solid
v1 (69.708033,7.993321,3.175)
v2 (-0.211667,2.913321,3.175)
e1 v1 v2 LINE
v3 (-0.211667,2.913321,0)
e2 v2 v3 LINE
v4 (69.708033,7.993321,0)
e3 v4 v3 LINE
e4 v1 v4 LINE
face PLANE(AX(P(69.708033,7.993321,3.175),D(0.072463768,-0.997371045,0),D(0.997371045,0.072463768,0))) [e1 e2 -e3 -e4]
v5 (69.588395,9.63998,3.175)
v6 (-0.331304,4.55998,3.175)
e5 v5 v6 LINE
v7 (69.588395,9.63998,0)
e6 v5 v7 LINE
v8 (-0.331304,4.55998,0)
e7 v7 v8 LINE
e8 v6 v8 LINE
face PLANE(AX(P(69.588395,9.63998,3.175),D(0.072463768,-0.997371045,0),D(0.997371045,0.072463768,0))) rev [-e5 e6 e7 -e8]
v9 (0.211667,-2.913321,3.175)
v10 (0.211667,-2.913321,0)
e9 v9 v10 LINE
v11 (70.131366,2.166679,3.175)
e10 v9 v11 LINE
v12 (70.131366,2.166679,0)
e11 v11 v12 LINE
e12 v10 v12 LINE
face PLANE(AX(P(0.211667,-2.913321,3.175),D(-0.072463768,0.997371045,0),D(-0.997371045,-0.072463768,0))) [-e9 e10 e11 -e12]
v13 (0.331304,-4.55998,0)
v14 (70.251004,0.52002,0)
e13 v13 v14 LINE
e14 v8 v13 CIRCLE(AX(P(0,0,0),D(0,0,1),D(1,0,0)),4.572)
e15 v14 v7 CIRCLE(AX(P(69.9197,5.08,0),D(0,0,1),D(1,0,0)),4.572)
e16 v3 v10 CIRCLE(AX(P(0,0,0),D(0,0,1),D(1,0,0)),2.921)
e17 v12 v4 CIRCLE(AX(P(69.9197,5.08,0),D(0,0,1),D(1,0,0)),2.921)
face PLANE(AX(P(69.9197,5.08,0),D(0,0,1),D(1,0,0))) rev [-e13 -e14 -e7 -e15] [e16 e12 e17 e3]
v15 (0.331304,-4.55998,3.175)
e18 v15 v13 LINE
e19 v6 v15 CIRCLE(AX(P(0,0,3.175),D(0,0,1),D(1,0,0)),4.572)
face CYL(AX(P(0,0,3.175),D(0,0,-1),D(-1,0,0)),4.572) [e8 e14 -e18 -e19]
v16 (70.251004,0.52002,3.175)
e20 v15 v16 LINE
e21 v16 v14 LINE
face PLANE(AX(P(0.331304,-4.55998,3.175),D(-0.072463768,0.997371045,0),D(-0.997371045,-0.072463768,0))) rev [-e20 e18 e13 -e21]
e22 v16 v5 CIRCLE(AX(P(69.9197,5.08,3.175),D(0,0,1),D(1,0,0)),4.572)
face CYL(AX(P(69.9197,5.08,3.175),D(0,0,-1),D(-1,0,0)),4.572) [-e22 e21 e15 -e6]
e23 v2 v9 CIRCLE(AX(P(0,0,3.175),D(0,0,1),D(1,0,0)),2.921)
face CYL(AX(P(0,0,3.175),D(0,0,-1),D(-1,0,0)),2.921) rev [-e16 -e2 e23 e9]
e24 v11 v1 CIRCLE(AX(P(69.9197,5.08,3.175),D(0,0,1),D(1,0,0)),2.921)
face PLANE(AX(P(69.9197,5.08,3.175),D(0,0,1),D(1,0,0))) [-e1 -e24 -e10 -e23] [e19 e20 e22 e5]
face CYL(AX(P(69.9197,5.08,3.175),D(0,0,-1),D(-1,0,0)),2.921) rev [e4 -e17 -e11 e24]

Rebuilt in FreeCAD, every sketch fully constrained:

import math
import FreeCAD as App
import Part
import Sketcher
Q = App.Units.Quantity

doc = App.newDocument("Part")
body = doc.addObject("PartDesign::Body", "Body")

# Sketch on XY plane
sketch1 = body.newObject("Sketcher::SketchObject", "Sketch")
sketch1.AttachmentSupport = (doc.getObject("XY_Plane"), [""])
sketch1.MapMode = "FlatFace"
sketch1.addGeometry(Part.LineSegment(App.Vector(69.6, 9.6, 0), App.Vector(-0.3, 4.6, 0)), False)
sketch1.addGeometry(Part.ArcOfCircle(Part.Circle(App.Vector(0, 0, 0), App.Vector(0, 0, 1), 4.6), math.radians(94), math.radians(274)), False)
sketch1.addGeometry(Part.LineSegment(App.Vector(0.3, -4.6, 0), App.Vector(70.3, 0.5, 0)), False)
sketch1.addGeometry(Part.ArcOfCircle(Part.Circle(App.Vector(69.9, 5.1, 0), App.Vector(0, 0, 1), 4.6), math.radians(-86), math.radians(94)), False)
sketch1.addGeometry(Part.LineSegment(App.Vector(70.1, 2.2, 0), App.Vector(0.2, -2.9, 0)), False)
sketch1.addGeometry(Part.ArcOfCircle(Part.Circle(App.Vector(0, 0, 0), App.Vector(0, 0, 1), 2.9), math.radians(94), math.radians(274)), False)
sketch1.addGeometry(Part.LineSegment(App.Vector(-0.2, 2.9, 0), App.Vector(69.7, 8, 0)), False)
sketch1.addGeometry(Part.ArcOfCircle(Part.Circle(App.Vector(69.9, 5.1, 0), App.Vector(0, 0, 1), 2.9), math.radians(-86), math.radians(94)), False)
sketch1.addConstraint(Sketcher.Constraint("Tangent", 0, 2, 1, 1))
sketch1.addConstraint(Sketcher.Constraint("Tangent", 1, 2, 2, 1))
sketch1.addConstraint(Sketcher.Constraint("Tangent", 2, 2, 3, 1))
sketch1.addConstraint(Sketcher.Constraint("Tangent", 3, 2, 0, 1))
sketch1.addConstraint(Sketcher.Constraint("Tangent", 4, 2, 5, 2))
sketch1.addConstraint(Sketcher.Constraint("Tangent", 5, 1, 6, 1))
sketch1.addConstraint(Sketcher.Constraint("Tangent", 6, 2, 7, 2))
sketch1.addConstraint(Sketcher.Constraint("Tangent", 7, 1, 4, 1))
sketch1.addConstraint(Sketcher.Constraint("Coincident", 1, 3, -1, 1))
sketch1.addConstraint(Sketcher.Constraint("Coincident", 5, 3, -1, 1))
sketch1.addConstraint(Sketcher.Constraint("Coincident", 7, 3, 3, 3))
sketch1.addConstraint(Sketcher.Constraint("Equal", 1, 3))
sketch1.addConstraint(Sketcher.Constraint("Equal", 5, 7))
sketch1.addConstraint(Sketcher.Constraint("Radius", 1, Q("0.18 in")))
sketch1.addConstraint(Sketcher.Constraint("Radius", 5, Q("0.115 in")))
sketch1.addConstraint(Sketcher.Constraint("DistanceY", -1, 1, 3, 3, Q("0.2 in")))
sketch1.addConstraint(Sketcher.Constraint("Distance", 0, Q("2.76 in")))
pad1 = body.newObject("PartDesign::Pad", "Pad")
pad1.Profile = sketch1
pad1.Length = Q("0.125 in")

doc.recompute()
